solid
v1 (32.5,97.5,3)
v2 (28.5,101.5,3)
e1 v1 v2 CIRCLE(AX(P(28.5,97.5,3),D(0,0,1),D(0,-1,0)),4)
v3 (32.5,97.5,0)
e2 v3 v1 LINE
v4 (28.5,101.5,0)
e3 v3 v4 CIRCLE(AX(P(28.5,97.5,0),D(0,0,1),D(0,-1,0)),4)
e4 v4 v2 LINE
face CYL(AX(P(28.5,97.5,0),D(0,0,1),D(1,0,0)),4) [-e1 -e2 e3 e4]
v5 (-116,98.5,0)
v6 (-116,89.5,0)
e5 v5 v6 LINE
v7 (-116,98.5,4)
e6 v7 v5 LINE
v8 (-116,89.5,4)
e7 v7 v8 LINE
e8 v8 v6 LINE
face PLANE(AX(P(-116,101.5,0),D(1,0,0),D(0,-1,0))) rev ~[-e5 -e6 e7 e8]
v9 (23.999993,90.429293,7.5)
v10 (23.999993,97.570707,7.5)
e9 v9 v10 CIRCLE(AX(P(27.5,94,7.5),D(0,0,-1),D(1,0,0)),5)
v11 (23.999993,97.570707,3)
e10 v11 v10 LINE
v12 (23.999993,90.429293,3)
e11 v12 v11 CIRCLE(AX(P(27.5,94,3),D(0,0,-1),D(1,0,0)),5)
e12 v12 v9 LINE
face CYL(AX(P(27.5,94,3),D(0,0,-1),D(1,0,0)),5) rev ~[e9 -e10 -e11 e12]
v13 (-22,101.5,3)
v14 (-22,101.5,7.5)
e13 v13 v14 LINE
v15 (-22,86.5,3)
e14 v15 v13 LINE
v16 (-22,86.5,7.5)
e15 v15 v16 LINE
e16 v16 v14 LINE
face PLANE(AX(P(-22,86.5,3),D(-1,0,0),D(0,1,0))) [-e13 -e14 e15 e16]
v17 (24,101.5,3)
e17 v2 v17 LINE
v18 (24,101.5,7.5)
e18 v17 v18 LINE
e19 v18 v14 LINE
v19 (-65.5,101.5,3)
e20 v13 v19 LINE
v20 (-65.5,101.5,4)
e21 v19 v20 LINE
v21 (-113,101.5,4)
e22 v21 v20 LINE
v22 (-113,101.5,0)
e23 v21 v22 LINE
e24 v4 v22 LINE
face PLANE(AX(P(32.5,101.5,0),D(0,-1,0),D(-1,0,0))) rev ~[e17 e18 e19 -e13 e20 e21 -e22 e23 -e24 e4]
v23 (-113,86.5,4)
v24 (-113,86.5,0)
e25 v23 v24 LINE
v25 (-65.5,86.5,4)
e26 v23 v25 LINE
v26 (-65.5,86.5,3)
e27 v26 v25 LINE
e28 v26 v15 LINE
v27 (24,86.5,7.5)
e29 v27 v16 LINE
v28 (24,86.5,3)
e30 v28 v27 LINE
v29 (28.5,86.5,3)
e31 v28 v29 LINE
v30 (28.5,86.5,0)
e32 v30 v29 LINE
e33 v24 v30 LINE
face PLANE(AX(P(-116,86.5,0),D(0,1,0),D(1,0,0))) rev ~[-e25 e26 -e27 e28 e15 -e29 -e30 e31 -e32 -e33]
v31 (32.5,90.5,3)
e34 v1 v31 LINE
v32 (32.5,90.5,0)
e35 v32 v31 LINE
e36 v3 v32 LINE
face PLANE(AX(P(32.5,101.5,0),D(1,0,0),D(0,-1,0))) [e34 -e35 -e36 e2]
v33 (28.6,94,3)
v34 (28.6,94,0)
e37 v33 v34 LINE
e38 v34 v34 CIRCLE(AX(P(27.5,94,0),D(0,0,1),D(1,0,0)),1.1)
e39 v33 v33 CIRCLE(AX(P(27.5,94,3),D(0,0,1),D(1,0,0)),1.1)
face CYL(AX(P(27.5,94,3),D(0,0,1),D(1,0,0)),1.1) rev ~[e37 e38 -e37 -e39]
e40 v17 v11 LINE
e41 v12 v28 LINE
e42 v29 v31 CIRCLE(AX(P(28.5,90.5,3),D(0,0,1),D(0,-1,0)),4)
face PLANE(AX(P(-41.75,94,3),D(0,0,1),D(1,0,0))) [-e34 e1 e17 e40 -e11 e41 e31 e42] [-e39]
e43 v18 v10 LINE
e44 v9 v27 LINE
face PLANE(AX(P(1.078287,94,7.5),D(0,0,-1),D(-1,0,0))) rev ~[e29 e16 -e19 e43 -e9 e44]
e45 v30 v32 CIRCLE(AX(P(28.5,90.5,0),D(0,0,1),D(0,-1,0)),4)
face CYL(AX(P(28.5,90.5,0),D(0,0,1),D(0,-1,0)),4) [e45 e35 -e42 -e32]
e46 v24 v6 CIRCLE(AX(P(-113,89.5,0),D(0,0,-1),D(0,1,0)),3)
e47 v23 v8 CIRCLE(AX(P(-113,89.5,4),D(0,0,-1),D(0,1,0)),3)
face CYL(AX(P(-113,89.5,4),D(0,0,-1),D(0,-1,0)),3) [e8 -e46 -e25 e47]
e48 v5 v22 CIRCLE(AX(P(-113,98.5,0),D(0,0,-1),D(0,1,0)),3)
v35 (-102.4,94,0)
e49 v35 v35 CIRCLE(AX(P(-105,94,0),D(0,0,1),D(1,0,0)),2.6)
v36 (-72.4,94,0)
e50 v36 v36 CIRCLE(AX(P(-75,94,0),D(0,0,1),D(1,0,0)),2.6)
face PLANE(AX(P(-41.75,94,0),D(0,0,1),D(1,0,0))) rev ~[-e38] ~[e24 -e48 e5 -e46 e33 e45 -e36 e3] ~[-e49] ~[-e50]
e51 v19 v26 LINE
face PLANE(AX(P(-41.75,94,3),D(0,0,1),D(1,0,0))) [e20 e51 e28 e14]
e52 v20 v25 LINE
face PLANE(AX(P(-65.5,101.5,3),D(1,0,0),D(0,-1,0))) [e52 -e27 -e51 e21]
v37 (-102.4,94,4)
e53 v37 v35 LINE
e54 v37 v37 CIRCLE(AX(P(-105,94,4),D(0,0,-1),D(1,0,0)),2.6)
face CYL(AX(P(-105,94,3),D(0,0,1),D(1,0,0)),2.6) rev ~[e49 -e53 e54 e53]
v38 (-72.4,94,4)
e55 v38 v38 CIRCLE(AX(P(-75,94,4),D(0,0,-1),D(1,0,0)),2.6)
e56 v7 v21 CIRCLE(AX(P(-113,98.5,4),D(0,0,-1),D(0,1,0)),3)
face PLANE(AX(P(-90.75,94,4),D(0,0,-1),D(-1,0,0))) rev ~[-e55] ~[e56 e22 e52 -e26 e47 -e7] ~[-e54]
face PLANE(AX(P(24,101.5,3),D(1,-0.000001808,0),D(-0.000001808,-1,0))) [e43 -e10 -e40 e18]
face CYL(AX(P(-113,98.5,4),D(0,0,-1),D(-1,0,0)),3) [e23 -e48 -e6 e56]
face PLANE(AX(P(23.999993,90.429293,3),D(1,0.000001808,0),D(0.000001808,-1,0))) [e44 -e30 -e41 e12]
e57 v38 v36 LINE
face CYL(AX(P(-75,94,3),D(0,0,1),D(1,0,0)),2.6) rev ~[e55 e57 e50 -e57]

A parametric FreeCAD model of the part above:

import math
import FreeCAD as App
import Part
import Sketcher


def edges_at(feature, points):
    """Names of the edges that pass closest to the given points."""
    edges = feature.Shape.Edges
    near = lambda p: min(range(len(edges)), key=lambda i: edges[i].distToShape(Part.Vertex(*p))[0])
    return sorted({f"Edge{near(p) + 1}" for p in points})


def add_polygon(sketch, points):
    """Adds a closed chain of lines whose ends are joined by coincident constraints."""
    first, n = sketch.GeometryCount, len(points)
    for a, b in zip(points, points[1:] + points[:1]):
        sketch.addGeometry(Part.LineSegment(App.Vector(*a, 0), App.Vector(*b, 0)), False)
    for i in range(n):
        sketch.addConstraint(Sketcher.Constraint("Coincident", first + i, 2, first + (i + 1) % n, 1))

doc = App.newDocument("Part")
body = doc.addObject("PartDesign::Body", "Body")

sketch1 = body.newObject("Sketcher::SketchObject", "Sketch")
sketch1.AttachmentSupport = (doc.getObject("XY_Plane"), [""])
sketch1.MapMode = "FlatFace"
add_polygon(sketch1, [(-116, 101.5), (-116, 86.5), (32.5, 86.5), (32.5, 101.5)])
sketch1.addConstraint([
    Sketcher.Constraint("Vertical", 0),
    Sketcher.Constraint("Horizontal", 1),
    Sketcher.Constraint("Vertical", 2),
    Sketcher.Constraint("Horizontal", 3),
    Sketcher.Constraint("DistanceY", 0, 2, 0, 1, 15.0),
    Sketcher.Constraint("DistanceX", 1, 1, 1, 2, 148.5),
    Sketcher.Constraint("DistanceX", 0, 2, -1, 1, 116.0),
    Sketcher.Constraint("DistanceY", -1, 1, 0, 2, 86.5),
])
pad1 = body.newObject("PartDesign::Pad", "Pad")
pad1.Profile = sketch1
pad1.Length = 3

sketch2 = body.newObject("Sketcher::SketchObject", "Sketch001")
sketch2.AttachmentSupport = (doc.getObject("XY_Plane"), [""])
sketch2.MapMode = "FlatFace"
sketch2.AttachmentOffset = App.Placement(App.Vector(0, 0, 3), App.Rotation())
sketch2.addGeometry(Part.Circle(App.Vector(27.5, 94, 0), App.Vector(0, 0, 1), 1.1), False)
sketch2.addConstraint([
    Sketcher.Constraint("Diameter", 0, 2.2),
    Sketcher.Constraint("DistanceY", -1, 1, 0, 3, 94.0),
    Sketcher.Constraint("DistanceX", -1, 1, 0, 3, 27.5),
])
pocket1 = body.newObject("PartDesign::Pocket", "Pocket")
pocket1.Profile = sketch2
pocket1.Type = "UpToFirst"
doc.recompute()

fillet = body.newObject("PartDesign::Fillet", "Fillet")
fillet.Base = (pocket1, edges_at(pocket1, [(32.5, 86.5, 1.5), (32.5, 101.5, 1.5)]))
fillet.Radius = 4

sketch3 = body.newObject("Sketcher::SketchObject", "Sketch002")
sketch3.AttachmentSupport = (doc.getObject("XY_Plane"), [""])
sketch3.MapMode = "FlatFace"
sketch3.AttachmentOffset = App.Placement(App.Vector(0, 0, 3), App.Rotation())
sketch3.addGeometry([
    Part.LineSegment(App.Vector(24, 86.5, 0), App.Vector(24, 90.4293, 0)),
    Part.ArcOfCircle(Part.Circle(App.Vector(27.5, 94, 0), App.Vector(0, 0, 1), 4.99999), math.radians(134.427118), math.radians(225.572882)),
    Part.LineSegment(App.Vector(24, 97.5707, 0), App.Vector(24, 101.5, 0)),
    Part.LineSegment(App.Vector(24, 101.5, 0), App.Vector(-22, 101.5, 0)),
    Part.LineSegment(App.Vector(-22, 101.5, 0), App.Vector(-22, 86.5, 0)),
    Part.LineSegment(App.Vector(-22, 86.5, 0), App.Vector(24, 86.5, 0)),
], False)
sketch3.addConstraint([
    Sketcher.Constraint("Coincident", 0, 2, 1, 2),
    Sketcher.Constraint("Coincident", 1, 1, 2, 1),
    Sketcher.Constraint("Coincident", 2, 2, 3, 1),
    Sketcher.Constraint("Coincident", 3, 2, 4, 1),
    Sketcher.Constraint("Coincident", 4, 2, 5, 1),
    Sketcher.Constraint("Coincident", 5, 2, 0, 1),
    Sketcher.Constraint("Vertical", 0),
    Sketcher.Constraint("Vertical", 2),
    Sketcher.Constraint("Horizontal", 3),
    Sketcher.Constraint("Vertical", 4),
    Sketcher.Constraint("Horizontal", 5),
    Sketcher.Constraint("Vertical", 0, 2, 1, 1),
    Sketcher.Constraint("Equal", 0, 2),
    Sketcher.Constraint("Radius", 1, 5.0),
    Sketcher.Constraint("DistanceX", 3, 2, 3, 1, 46.0),
    Sketcher.Constraint("DistanceY", 4, 2, 4, 1, 15.0),
    Sketcher.Constraint("DistanceY", -1, 1, 1, 3, 94.0),
    Sketcher.Constraint("DistanceX", -1, 1, 0, 2, 24.0),
    Sketcher.Constraint("DistanceX", -1, 1, 1, 3, 27.5),
])
pad2 = body.newObject("PartDesign::Pad", "Pad001")
pad2.Profile = sketch3
pad2.Length = 4.5

sketch4 = body.newObject("Sketcher::SketchObject", "Sketch003")
sketch4.AttachmentSupport = (doc.getObject("XY_Plane"), [""])
sketch4.MapMode = "FlatFace"
sketch4.AttachmentOffset = App.Placement(App.Vector(0, 0, 3), App.Rotation())
add_polygon(sketch4, [(-65.5, 101.5), (-116, 101.5), (-116, 86.5), (-65.5, 86.5)])
sketch4.addConstraint([
    Sketcher.Constraint("Horizontal", 0),
    Sketcher.Constraint("Vertical", 1),
    Sketcher.Constraint("Horizontal", 2),
    Sketcher.Constraint("Vertical", 3),
    Sketcher.Constraint("DistanceY", 1, 2, 1, 1, 15.0),
    Sketcher.Constraint("DistanceX", 0, 2, 0, 1, 50.5),
    Sketcher.Constraint("DistanceX", 0, 2, -1, 1, 116.0),
    Sketcher.Constraint("DistanceY", -1, 1, 0, 2, 101.5),
])
pad3 = body.newObject("PartDesign::Pad", "Pad002")
pad3.Profile = sketch4
pad3.Length = 1

sketch5 = body.newObject("Sketcher::SketchObject", "Sketch004")
sketch5.AttachmentSupport = (doc.getObject("XY_Plane"), [""])
sketch5.MapMode = "FlatFace"
sketch5.AttachmentOffset = App.Placement(App.Vector(0, 0, 3), App.Rotation())
sketch5.addGeometry([
    Part.Circle(App.Vector(-105, 94, 0), App.Vector(0, 0, 1), 2.6),
    Part.Circle(App.Vector(-75, 94, 0), App.Vector(0, 0, 1), 2.6),
], False)
sketch5.addConstraint([
    Sketcher.Constraint("Equal", 0, 1),
    Sketcher.Constraint("Horizontal", 0, 3, 1, 3),
    Sketcher.Constraint("Diameter", 0, 5.2),
    Sketcher.Constraint("DistanceX", 0, 3, -1, 1, 105.0),
    Sketcher.Constraint("DistanceY", -1, 1, 0, 3, 94.0),
    Sketcher.Constraint("DistanceX", 1, 3, -1, 1, 75.0),
])
pocket2 = body.newObject("PartDesign::Pocket", "Pocket001")
pocket2.Profile = sketch5
pocket2.Length = 10.057
pocket2.Midplane = True
doc.recompute()

fillet2 = body.newObject("PartDesign::Fillet", "Fillet001")
fillet2.Base = (pocket2, edges_at(pocket2, [(-116, 86.5, 2), (-116, 101.5, 2)]))
fillet2.Radius = 3

doc.recompute()
